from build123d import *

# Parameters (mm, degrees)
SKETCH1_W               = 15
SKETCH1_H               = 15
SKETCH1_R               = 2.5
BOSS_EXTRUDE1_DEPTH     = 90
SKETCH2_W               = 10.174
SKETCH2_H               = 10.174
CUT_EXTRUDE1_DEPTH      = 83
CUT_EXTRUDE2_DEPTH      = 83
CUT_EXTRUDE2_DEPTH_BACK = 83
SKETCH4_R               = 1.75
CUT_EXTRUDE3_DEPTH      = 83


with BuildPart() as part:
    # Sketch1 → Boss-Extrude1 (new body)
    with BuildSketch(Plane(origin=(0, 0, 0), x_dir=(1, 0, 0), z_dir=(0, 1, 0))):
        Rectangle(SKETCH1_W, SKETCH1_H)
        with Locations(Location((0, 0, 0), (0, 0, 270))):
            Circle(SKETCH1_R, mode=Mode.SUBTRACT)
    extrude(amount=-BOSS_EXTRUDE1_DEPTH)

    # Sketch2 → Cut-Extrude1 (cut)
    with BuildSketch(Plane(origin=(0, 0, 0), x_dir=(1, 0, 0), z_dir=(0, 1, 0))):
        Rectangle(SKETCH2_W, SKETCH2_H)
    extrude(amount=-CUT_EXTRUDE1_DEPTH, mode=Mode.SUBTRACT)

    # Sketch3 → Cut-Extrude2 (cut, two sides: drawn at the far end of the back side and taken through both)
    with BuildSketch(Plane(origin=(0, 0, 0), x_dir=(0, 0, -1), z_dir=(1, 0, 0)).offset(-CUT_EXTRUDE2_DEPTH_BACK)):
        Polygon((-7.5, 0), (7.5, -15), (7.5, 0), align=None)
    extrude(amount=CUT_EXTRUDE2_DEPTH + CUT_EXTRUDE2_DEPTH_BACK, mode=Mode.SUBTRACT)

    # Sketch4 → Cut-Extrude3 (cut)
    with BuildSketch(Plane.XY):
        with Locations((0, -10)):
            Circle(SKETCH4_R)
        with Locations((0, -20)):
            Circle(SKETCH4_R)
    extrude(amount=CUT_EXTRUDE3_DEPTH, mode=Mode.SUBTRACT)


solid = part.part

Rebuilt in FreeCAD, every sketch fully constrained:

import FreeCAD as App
import Part
import Sketcher
from FreeCAD import Vector
Q = App.Units.Quantity

doc = App.newDocument("Part")
body = doc.addObject("PartDesign::Body", "Body")

sketch1 = doc.addObject("Sketcher::SketchObject", "Sketch")
body.addObject(sketch1)
sketch1.AttachmentSupport = (doc.XZ_Plane, [""])
sketch1.MapMode = "FlatFace"
sketch1.addGeometry([
    Part.LineSegment(Vector(-7.5, -7.5, 0), Vector(-7.5, 7.5, 0)),
    Part.LineSegment(Vector(-7.5, 7.5, 0), Vector(7.5, 7.5, 0)),
    Part.LineSegment(Vector(7.5, 7.5, 0), Vector(7.5, -7.5, 0)),
    Part.LineSegment(Vector(7.5, -7.5, 0), Vector(-7.5, -7.5, 0)),
    Part.Circle(Vector(0, 0, 0), Vector(0, 0, 1), 2.5),
], False)
sketch1.addConstraint([
    Sketcher.Constraint("Coincident", 0, 2, 1, 1),
    Sketcher.Constraint("Coincident", 1, 2, 2, 1),
    Sketcher.Constraint("Coincident", 2, 2, 3, 1),
    Sketcher.Constraint("Coincident", 3, 2, 0, 1),
    Sketcher.Constraint("Vertical", 0),
    Sketcher.Constraint("Horizontal", 1),
    Sketcher.Constraint("Vertical", 2),
    Sketcher.Constraint("Horizontal", 3),
    Sketcher.Constraint("Coincident", 4, 3, -1, 1),
    Sketcher.Constraint("Symmetric", 0, 2, 2, 2, -1, 1),
    Sketcher.Constraint("Equal", 3, 0),
    Sketcher.Constraint("Diameter", 4, Q("5 mm")),
    Sketcher.Constraint("DistanceX", 1, 1, 1, 2, Q("15 mm")),
])
pad1 = doc.addObject("PartDesign::Pad", "Pad")
body.addObject(pad1)
pad1.Profile = sketch1
pad1.Length = 90

sketch2 = doc.addObject("Sketcher::SketchObject", "Sketch001")
body.addObject(sketch2)
sketch2.AttachmentSupport = (doc.XZ_Plane, [""])
sketch2.MapMode = "FlatFace"
sketch2.addGeometry([
    Part.LineSegment(Vector(-5, -5, 0), Vector(-5, 5, 0)),
    Part.LineSegment(Vector(-5, 5, 0), Vector(5, 5, 0)),
    Part.LineSegment(Vector(5, 5, 0), Vector(5, -5, 0)),
    Part.LineSegment(Vector(5, -5, 0), Vector(-5, -5, 0)),
], False)
sketch2.addConstraint([
    Sketcher.Constraint("Coincident", 0, 2, 1, 1),
    Sketcher.Constraint("Coincident", 1, 2, 2, 1),
    Sketcher.Constraint("Coincident", 2, 2, 3, 1),
    Sketcher.Constraint("Coincident", 3, 2, 0, 1),
    Sketcher.Constraint("Vertical", 0),
    Sketcher.Constraint("Horizontal", 1),
    Sketcher.Constraint("Vertical", 2),
    Sketcher.Constraint("Horizontal", 3),
    Sketcher.Constraint("Symmetric", 0, 2, 2, 2, -1, 1),
    Sketcher.Constraint("Equal", 3, 0),
    Sketcher.Constraint("DistanceX", 1, 1, 1, 2, Q("10.174 mm")),
])
pocket1 = doc.addObject("PartDesign::Pocket", "Pocket")
body.addObject(pocket1)
pocket1.Profile = sketch2
pocket1.Length = 83
pocket1.Reversed = True

sketch3 = doc.addObject("Sketcher::SketchObject", "Sketch002")
body.addObject(sketch3)
sketch3.AttachmentSupport = (doc.YZ_Plane, [""])
sketch3.MapMode = "FlatFace"
sketch3.addGeometry([
    Part.LineSegment(Vector(0, 8, 0), Vector(-15, -8, 0)),
    Part.LineSegment(Vector(-15, -8, 0), Vector(0, -8, 0)),
    Part.LineSegment(Vector(0, -8, 0), Vector(0, 8, 0)),
], False)
sketch3.addConstraint([
    Sketcher.Constraint("Coincident", 0, 2, 1, 1),
    Sketcher.Constraint("Coincident", 1, 2, 2, 1),
    Sketcher.Constraint("Coincident", 2, 2, 0, 1),
    Sketcher.Constraint("Horizontal", 1),
    Sketcher.Constraint("Vertical", 2),
    Sketcher.Constraint("Symmetric", 1, 2, 2, 2, -1, 1),
    Sketcher.Constraint("Equal", 1, 2),
    Sketcher.Constraint("DistanceX", 1, 1, 1, 2, Q("15 mm")),
])
pocket2 = doc.addObject("PartDesign::Pocket", "Pocket001")
body.addObject(pocket2)
pocket2.Profile = sketch3
pocket2.Type = "ThroughAll"
pocket2.Midplane = True

sketch4 = doc.addObject("Sketcher::SketchObject", "Sketch003")
body.addObject(sketch4)
sketch4.AttachmentSupport = (doc.XY_Plane, [""])
sketch4.MapMode = "FlatFace"
sketch4.addGeometry([
    Part.Circle(Vector(0, -10, 0), Vector(0, 0, 1), 1.8),
    Part.Circle(Vector(0, -20, 0), Vector(0, 0, 1), 1.8),
], False)
sketch4.addConstraint([
    Sketcher.Constraint("Equal", 0, 1),
    Sketcher.Constraint("PointOnObject", 0, 3, -2),
    Sketcher.Constraint("PointOnObject", 1, 3, -2),
    Sketcher.Constraint("Diameter", 0, Q("3.5 mm")),
    Sketcher.Constraint("DistanceY", 0, 3, -1, 1, Q("10 mm")),
    Sketcher.Constraint("DistanceY", 1, 3, -1, 1, Q("20 mm")),
])
pocket3 = doc.addObject("PartDesign::Pocket", "Pocket002")
body.addObject(pocket3)
pocket3.Profile = sketch4
pocket3.Length = 83
pocket3.Reversed = True

doc.recompute()
